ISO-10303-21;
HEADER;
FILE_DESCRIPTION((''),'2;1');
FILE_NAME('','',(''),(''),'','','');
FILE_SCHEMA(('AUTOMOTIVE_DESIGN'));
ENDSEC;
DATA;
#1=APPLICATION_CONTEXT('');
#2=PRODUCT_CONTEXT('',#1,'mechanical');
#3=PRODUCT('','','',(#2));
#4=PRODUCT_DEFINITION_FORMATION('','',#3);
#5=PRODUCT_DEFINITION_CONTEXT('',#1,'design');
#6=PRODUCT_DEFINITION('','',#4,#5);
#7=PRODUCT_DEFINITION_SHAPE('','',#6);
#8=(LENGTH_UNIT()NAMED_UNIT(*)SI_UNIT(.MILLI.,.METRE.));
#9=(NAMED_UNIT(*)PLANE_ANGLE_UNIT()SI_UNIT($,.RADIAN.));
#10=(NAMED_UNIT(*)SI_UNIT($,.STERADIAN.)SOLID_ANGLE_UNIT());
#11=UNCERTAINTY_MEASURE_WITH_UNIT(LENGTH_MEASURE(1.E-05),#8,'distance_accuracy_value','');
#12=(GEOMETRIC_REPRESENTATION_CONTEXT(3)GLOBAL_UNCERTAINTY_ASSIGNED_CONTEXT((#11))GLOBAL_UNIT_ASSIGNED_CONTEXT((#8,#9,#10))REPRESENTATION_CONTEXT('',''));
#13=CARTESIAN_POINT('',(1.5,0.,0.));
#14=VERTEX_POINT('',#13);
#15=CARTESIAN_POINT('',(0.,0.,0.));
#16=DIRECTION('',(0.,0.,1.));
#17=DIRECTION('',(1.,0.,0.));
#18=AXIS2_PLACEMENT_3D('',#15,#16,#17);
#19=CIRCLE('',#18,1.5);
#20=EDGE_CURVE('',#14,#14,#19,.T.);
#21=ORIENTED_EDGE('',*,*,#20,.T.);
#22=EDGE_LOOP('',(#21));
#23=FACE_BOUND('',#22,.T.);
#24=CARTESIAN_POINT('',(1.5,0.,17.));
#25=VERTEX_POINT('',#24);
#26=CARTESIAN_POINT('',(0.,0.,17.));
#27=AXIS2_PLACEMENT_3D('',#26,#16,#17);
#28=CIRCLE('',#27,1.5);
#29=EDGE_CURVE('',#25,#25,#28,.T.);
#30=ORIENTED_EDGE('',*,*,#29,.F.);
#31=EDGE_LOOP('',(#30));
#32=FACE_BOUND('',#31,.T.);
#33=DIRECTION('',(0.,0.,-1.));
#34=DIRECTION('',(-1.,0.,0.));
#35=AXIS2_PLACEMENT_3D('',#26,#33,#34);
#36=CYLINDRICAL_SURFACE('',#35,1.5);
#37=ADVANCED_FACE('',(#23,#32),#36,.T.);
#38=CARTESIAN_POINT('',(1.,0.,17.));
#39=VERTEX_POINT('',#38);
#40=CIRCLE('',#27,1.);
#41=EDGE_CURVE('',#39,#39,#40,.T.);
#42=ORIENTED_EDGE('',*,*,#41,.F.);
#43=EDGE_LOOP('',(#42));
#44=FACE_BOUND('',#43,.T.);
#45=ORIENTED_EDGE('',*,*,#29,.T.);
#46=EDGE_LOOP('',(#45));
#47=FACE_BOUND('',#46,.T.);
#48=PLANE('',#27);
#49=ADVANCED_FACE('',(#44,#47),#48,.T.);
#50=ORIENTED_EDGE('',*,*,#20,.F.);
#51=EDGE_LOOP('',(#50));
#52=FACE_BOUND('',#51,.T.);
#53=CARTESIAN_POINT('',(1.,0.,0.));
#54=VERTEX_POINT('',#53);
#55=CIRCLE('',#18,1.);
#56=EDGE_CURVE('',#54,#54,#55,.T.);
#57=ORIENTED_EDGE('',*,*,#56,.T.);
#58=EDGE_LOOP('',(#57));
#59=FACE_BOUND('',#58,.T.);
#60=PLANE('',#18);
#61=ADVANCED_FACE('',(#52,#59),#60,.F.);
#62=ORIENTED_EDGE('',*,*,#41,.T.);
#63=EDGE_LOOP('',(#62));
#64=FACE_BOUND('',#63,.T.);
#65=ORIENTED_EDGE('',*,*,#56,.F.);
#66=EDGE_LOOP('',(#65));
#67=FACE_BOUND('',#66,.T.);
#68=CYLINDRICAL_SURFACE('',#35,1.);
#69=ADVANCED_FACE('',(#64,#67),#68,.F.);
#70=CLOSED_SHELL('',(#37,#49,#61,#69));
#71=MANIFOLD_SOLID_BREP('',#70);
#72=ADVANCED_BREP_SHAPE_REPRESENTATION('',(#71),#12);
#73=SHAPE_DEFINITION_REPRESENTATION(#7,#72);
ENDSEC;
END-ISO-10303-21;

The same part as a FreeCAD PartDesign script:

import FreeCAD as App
import Part
import Sketcher

doc = App.newDocument("Part")
body = doc.addObject("PartDesign::Body", "Body")

sketch1 = doc.addObject("Sketcher::SketchObject", "Sketch")
body.addObject(sketch1)
sketch1.AttachmentSupport = (doc.XY_Plane, [""])
sketch1.MapMode = "FlatFace"
sketch1.addGeometry([
    Part.Circle(App.Vector(0, 0, 0), App.Vector(0, 0, 1), 1.5),
    Part.Circle(App.Vector(0, 0, 0), App.Vector(0, 0, 1), 1),
], False)
sketch1.addConstraint([
    Sketcher.Constraint("Coincident", 0, 3, -1, 1),
    Sketcher.Constraint("Coincident", 1, 3, -1, 1),
    Sketcher.Constraint("Diameter", 0, 3.0),
    Sketcher.Constraint("Diameter", 1, 2.0),
])
pad1 = doc.addObject("PartDesign::Pad", "Pad")
body.addObject(pad1)
pad1.Profile = sketch1
pad1.Length = 17

doc.recompute()
